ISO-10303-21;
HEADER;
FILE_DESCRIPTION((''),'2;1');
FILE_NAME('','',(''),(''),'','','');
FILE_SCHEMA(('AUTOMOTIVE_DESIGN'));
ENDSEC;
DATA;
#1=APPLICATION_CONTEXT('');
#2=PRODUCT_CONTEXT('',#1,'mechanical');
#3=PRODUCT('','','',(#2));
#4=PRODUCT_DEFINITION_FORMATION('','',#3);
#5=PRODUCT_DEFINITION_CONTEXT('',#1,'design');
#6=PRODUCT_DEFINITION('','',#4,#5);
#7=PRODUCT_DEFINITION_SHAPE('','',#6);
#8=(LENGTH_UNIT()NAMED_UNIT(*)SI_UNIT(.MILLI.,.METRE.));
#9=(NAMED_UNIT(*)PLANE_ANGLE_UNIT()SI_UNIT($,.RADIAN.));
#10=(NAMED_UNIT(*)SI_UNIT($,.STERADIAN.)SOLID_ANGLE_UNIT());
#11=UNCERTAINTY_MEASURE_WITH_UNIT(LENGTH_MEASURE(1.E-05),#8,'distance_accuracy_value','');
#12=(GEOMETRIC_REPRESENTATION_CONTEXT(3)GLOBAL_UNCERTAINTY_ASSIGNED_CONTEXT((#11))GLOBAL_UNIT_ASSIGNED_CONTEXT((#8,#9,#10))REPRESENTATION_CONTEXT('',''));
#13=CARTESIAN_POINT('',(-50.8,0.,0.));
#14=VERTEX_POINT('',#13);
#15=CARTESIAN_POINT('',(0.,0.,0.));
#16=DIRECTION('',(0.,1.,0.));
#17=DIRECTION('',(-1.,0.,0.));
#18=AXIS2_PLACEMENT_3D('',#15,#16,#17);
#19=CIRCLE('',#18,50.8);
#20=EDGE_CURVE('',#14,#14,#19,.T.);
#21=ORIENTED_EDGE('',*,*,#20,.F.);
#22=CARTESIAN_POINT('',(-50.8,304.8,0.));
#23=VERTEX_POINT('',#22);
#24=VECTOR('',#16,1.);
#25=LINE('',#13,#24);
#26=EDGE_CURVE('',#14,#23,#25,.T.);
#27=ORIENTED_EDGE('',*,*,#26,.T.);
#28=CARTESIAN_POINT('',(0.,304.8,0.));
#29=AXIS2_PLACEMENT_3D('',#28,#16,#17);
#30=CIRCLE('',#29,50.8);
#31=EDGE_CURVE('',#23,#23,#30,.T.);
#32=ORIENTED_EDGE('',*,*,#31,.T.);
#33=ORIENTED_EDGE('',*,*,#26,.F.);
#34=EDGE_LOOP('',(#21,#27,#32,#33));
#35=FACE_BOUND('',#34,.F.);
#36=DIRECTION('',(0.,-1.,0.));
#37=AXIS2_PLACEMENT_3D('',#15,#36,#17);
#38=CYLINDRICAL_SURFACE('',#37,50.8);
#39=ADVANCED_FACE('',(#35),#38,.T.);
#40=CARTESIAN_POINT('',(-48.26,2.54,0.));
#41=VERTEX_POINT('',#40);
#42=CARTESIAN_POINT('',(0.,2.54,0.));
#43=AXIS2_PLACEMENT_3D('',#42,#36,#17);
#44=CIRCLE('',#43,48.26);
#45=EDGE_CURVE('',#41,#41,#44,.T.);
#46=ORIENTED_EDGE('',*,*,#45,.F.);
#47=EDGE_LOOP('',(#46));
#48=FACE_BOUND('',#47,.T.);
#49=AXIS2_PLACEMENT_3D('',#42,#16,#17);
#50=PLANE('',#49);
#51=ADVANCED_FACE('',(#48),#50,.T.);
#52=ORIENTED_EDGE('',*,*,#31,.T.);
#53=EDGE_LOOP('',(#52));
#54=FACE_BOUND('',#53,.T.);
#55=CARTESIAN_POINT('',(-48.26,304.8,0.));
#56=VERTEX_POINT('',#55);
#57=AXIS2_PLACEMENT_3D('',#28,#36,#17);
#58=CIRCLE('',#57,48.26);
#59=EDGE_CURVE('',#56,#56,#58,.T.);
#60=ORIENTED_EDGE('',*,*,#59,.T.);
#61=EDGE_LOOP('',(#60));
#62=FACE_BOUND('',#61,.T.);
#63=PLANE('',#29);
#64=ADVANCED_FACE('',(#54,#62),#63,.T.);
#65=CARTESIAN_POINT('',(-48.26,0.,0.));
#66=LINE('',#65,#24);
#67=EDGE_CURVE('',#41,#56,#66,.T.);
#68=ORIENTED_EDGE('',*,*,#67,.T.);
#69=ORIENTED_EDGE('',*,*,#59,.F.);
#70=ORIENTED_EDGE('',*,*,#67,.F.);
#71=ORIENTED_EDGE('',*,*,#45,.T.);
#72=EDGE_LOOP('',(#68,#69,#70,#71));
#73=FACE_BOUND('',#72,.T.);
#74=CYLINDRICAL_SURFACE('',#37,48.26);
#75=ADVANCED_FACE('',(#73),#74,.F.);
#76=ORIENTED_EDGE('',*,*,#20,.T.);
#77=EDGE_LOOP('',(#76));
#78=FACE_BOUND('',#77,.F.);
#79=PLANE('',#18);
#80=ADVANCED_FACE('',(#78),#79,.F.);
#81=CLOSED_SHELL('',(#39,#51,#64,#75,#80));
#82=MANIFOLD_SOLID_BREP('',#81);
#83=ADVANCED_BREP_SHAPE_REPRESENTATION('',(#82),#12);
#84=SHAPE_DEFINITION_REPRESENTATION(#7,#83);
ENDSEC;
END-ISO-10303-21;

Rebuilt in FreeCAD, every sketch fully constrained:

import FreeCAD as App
import Part
import Sketcher
Q = App.Units.Quantity


def faces_at(feature, points):
    """Names of the faces that lie closest to the given points."""
    faces = feature.Shape.Faces
    near = lambda p: min(range(len(faces)), key=lambda i: faces[i].distToShape(Part.Vertex(*p))[0])
    return sorted({f"Face{near(p) + 1}" for p in points})

doc = App.newDocument("Part")
body = doc.addObject("PartDesign::Body", "Body")

sketch1 = body.newObject("Sketcher::SketchObject", "Sketch")
sketch1.AttachmentSupport = (doc.getObject("XZ_Plane"), [""])
sketch1.MapMode = "FlatFace"
sketch1.addGeometry(Part.Circle(App.Vector(0, 0, 0), App.Vector(0, 0, 1), 51), False)
sketch1.addConstraint([
    Sketcher.Constraint("Coincident", 0, 3, -1, 1),
    Sketcher.Constraint("Diameter", 0, Q("4 in")),
])
pad1 = body.newObject("PartDesign::Pad", "Pad")
pad1.Profile = sketch1
pad1.Length = Q("12 in")
pad1.Reversed = True
doc.recompute()

thickness = body.newObject("PartDesign::Thickness", "Thickness")
thickness.Base = (pad1, faces_at(pad1, [(7.302, 304.8, 11.514)]))
thickness.Value = Q("0.1 in")
thickness.Reversed = True
thickness.Join = "Intersection"

doc.recompute()
